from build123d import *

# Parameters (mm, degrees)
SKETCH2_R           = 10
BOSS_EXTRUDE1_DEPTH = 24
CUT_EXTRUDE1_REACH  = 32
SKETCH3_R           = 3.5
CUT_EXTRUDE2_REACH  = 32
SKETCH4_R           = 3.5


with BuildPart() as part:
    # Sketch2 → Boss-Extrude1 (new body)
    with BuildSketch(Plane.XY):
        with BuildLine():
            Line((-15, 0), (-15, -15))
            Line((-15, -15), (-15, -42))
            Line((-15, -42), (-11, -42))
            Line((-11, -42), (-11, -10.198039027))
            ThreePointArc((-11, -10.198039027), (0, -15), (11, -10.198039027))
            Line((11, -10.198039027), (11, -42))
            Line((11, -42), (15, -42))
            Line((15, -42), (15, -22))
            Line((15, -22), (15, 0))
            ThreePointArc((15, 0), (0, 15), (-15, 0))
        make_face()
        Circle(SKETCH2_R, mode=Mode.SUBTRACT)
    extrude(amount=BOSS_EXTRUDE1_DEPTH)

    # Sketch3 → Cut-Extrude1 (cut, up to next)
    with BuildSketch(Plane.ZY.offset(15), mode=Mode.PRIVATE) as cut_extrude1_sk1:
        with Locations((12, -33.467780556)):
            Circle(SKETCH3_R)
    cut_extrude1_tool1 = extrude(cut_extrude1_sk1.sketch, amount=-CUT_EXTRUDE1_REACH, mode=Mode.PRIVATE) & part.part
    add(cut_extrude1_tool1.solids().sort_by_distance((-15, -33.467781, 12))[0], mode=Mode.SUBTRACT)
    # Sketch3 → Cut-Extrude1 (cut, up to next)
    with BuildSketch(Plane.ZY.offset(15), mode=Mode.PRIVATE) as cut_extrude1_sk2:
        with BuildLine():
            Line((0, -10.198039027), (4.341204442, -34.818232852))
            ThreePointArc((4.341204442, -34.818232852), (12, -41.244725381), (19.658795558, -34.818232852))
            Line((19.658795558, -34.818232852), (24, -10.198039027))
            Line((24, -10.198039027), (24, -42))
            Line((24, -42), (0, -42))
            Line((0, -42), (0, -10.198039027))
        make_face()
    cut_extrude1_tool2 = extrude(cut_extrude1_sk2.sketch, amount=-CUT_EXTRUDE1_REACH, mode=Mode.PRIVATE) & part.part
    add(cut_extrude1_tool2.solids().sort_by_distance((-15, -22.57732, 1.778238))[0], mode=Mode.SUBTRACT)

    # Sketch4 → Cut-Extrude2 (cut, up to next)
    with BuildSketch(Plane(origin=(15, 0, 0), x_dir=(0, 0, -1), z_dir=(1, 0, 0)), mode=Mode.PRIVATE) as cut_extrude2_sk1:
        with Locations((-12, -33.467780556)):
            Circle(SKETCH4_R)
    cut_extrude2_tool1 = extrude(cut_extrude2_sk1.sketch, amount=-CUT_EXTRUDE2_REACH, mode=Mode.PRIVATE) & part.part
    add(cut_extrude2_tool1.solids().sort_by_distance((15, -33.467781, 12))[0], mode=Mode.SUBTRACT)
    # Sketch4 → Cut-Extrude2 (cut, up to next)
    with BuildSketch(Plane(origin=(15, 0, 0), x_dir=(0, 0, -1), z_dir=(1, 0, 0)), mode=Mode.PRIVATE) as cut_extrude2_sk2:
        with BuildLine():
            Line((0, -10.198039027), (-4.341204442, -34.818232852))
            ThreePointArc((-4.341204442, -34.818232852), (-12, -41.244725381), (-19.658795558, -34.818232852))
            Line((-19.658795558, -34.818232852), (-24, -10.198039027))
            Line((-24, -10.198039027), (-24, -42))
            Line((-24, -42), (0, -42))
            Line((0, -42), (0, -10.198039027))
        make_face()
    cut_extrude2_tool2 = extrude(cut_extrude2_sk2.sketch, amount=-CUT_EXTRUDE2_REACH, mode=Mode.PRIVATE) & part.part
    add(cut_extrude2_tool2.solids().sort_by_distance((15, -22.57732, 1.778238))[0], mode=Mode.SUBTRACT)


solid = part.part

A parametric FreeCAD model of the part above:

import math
import FreeCAD as App
import Part
import Sketcher

V = App.Vector
Q = App.Units.Quantity

doc = App.newDocument("Part")
body = doc.addObject("PartDesign::Body", "Body")

# Sketch on XY plane
sketch1 = body.newObject("Sketcher::SketchObject", "Sketch")
sketch1.AttachmentSupport = (doc.getObject("XY_Plane"), [""])
sketch1.MapMode = "FlatFace"
sketch1.addGeometry([
    Part.LineSegment(V(-15, 0, 0), V(-15, -42, 0)),  # 0
    Part.LineSegment(V(-15, -42, 0), V(-11, -42, 0)),  # 1
    Part.LineSegment(V(-11, -42, 0), V(-11, -10.2, 0)),  # 2
    Part.ArcOfCircle(Part.Circle(V(0, 0, 0), V(0, 0, 1), 15), math.radians(-137), math.radians(-43)),  # 3
    Part.LineSegment(V(11, -10.2, 0), V(11, -42, 0)),  # 4
    Part.LineSegment(V(11, -42, 0), V(15, -42, 0)),  # 5
    Part.LineSegment(V(15, -42, 0), V(15, 0, 0)),  # 6
    Part.ArcOfCircle(Part.Circle(V(0, 0, 0), V(0, 0, 1), 15), math.radians(0), math.radians(180)),  # 7
    Part.Circle(V(0, 0, 0), V(0, 0, 1), 10),  # 8
], False)
sketch1.addConstraint([
    Sketcher.Constraint("Coincident", 0, 2, 1, 1),
    Sketcher.Constraint("Coincident", 1, 2, 2, 1),
    Sketcher.Constraint("Coincident", 2, 2, 3, 1),
    Sketcher.Constraint("Coincident", 3, 2, 4, 1),
    Sketcher.Constraint("Coincident", 4, 2, 5, 1),
    Sketcher.Constraint("Coincident", 5, 2, 6, 1),
    Sketcher.Constraint("Tangent", 6, 2, 7, 1),
    Sketcher.Constraint("Tangent", 7, 2, 0, 1),
    Sketcher.Constraint("Vertical", 0),
    Sketcher.Constraint("Horizontal", 1),
    Sketcher.Constraint("Vertical", 2),
    Sketcher.Constraint("Vertical", 4),
    Sketcher.Constraint("Horizontal", 5),
    Sketcher.Constraint("Vertical", 6),
    Sketcher.Constraint("Coincident", 3, 3, -1, 1),
    Sketcher.Constraint("Coincident", 7, 3, -1, 1),
    Sketcher.Constraint("Coincident", 8, 3, -1, 1),
    Sketcher.Constraint("Equal", 3, 7),
    Sketcher.Constraint("Symmetric", 1, 2, 4, 2, -2),
    Sketcher.Constraint("Diameter", 8, Q("20 mm")),
    Sketcher.Constraint("Radius", 3, Q("15 mm")),
    Sketcher.Constraint("DistanceX", 1, 1, 1, 2, Q("4 mm")),
    Sketcher.Constraint("DistanceY", 0, 2, 0, 1, Q("42 mm")),
])
pad1 = body.newObject("PartDesign::Pad", "Pad")
pad1.Profile = sketch1
pad1.Length = 24

# Sketch on YZ plane
sketch2 = body.newObject("Sketcher::SketchObject", "Sketch001")
sketch2.AttachmentSupport = (doc.getObject("YZ_Plane"), [""])
sketch2.MapMode = "FlatFace"
sketch2.AttachmentOffset = App.Placement(V(0, 0, -15), App.Rotation())
sketch2.addGeometry(Part.Circle(V(-33.5, 12, 0), V(0, 0, 1), 3.5), False)
sketch2.addConstraint([
    Sketcher.Constraint("Diameter", 0, Q("7 mm")),
    Sketcher.Constraint("DistanceY", -1, 1, 0, 3, Q("12 mm")),
    Sketcher.Constraint("DistanceX", 0, 3, -1, 1, Q("33.467781 mm")),
])
pocket1 = body.newObject("PartDesign::Pocket", "Pocket")
pocket1.Profile = sketch2
pocket1.Type = "UpToFirst"
pocket1.Reversed = True

# Sketch on YZ plane
sketch3 = body.newObject("Sketcher::SketchObject", "Sketch002")
sketch3.AttachmentSupport = (doc.getObject("YZ_Plane"), [""])
sketch3.MapMode = "FlatFace"
sketch3.AttachmentOffset = App.Placement(V(0, 0, -15), App.Rotation())
sketch3.addGeometry([
    Part.LineSegment(V(-35, 4, 0), V(-10, 0, 0)),  # 0
    Part.LineSegment(V(-10, 0, 0), V(-42, 0, 0)),  # 1
    Part.LineSegment(V(-42, 0, 0), V(-42, 24, 0)),  # 2
    Part.LineSegment(V(-42, 24, 0), V(-10, 24, 0)),  # 3
    Part.LineSegment(V(-10, 24, 0), V(-35, 20, 0)),  # 4
    Part.ArcOfCircle(Part.Circle(V(-33, 12, 0), V(0, 0, 1), 8), math.radians(100), math.radians(260)),  # 5
], False)
sketch3.addConstraint([
    Sketcher.Constraint("Coincident", 0, 2, 1, 1),
    Sketcher.Constraint("Coincident", 1, 2, 2, 1),
    Sketcher.Constraint("Coincident", 2, 2, 3, 1),
    Sketcher.Constraint("Coincident", 3, 2, 4, 1),
    Sketcher.Constraint("Tangent", 4, 2, 5, 1),
    Sketcher.Constraint("Tangent", 5, 2, 0, 1),
    Sketcher.Constraint("Horizontal", 1),
    Sketcher.Constraint("Vertical", 2),
    Sketcher.Constraint("Horizontal", 3),
    Sketcher.Constraint("PointOnObject", 0, 2, -1),
    Sketcher.Constraint("Vertical", 0, 2, 3, 2),
    Sketcher.Constraint("Vertical", 4, 2, 5, 2),
    Sketcher.Constraint("DistanceY", 2, 1, 2, 2, Q("24 mm")),
    Sketcher.Constraint("Angle", 0, Q("-10 deg")),
    Sketcher.Constraint("Distance", 0, Q("25 mm")),
    Sketcher.Constraint("DistanceX", 1, 2, -1, 1, Q("42 mm")),
    Sketcher.Constraint("DistanceX", 1, 2, 1, 1, Q("31.801961 mm")),
])
pocket2 = body.newObject("PartDesign::Pocket", "Pocket001")
pocket2.Profile = sketch3
pocket2.Length = 4
pocket2.Reversed = True

# Sketch on YZ plane
sketch4 = body.newObject("Sketcher::SketchObject", "Sketch003")
sketch4.AttachmentSupport = (doc.getObject("YZ_Plane"), [""])
sketch4.MapMode = "FlatFace"
sketch4.AttachmentOffset = App.Placement(V(0, 0, 15), App.Rotation())
sketch4.addGeometry(Part.Circle(V(-33.5, 12, 0), V(0, 0, 1), 3.5), False)
sketch4.addConstraint([
    Sketcher.Constraint("Diameter", 0, Q("7 mm")),
    Sketcher.Constraint("DistanceY", -1, 1, 0, 3, Q("12 mm")),
    Sketcher.Constraint("DistanceX", 0, 3, -1, 1, Q("33.467781 mm")),
])
pocket3 = body.newObject("PartDesign::Pocket", "Pocket002")
pocket3.Profile = sketch4
pocket3.Type = "UpToFirst"

# Sketch on YZ plane
sketch5 = body.newObject("Sketcher::SketchObject", "Sketch004")
sketch5.AttachmentSupport = (doc.getObject("YZ_Plane"), [""])
sketch5.MapMode = "FlatFace"
sketch5.AttachmentOffset = App.Placement(V(0, 0, 15), App.Rotation())
sketch5.addGeometry([
    Part.LineSegment(V(-10, 0, 0), V(-35, 4, 0)),  # 0
    Part.ArcOfCircle(Part.Circle(V(-33, 12, 0), V(0, 0, 1), 8), math.radians(100), math.radians(260)),  # 1
    Part.LineSegment(V(-35, 20, 0), V(-10, 24, 0)),  # 2
    Part.LineSegment(V(-10, 24, 0), V(-42, 24, 0)),  # 3
    Part.LineSegment(V(-42, 24, 0), V(-42, 0, 0)),  # 4
    Part.LineSegment(V(-42, 0, 0), V(-10, 0, 0)),  # 5
], False)
sketch5.addConstraint([
    Sketcher.Constraint("Tangent", 0, 2, 1, 2),
    Sketcher.Constraint("Tangent", 1, 1, 2, 1),
    Sketcher.Constraint("Coincident", 2, 2, 3, 1),
    Sketcher.Constraint("Coincident", 3, 2, 4, 1),
    Sketcher.Constraint("Coincident", 4, 2, 5, 1),
    Sketcher.Constraint("Coincident", 5, 2, 0, 1),
    Sketcher.Constraint("Horizontal", 3),
    Sketcher.Constraint("Vertical", 4),
    Sketcher.Constraint("Horizontal", 5),
    Sketcher.Constraint("PointOnObject", 4, 2, -1),
    Sketcher.Constraint("Vertical", 0, 2, 1, 1),
    Sketcher.Constraint("Vertical", 2, 2, 5, 2),
    Sketcher.Constraint("DistanceY", 4, 2, 4, 1, Q("24 mm")),
    Sketcher.Constraint("Angle", 0, Q("170 deg")),
    Sketcher.Constraint("Distance", 0, Q("25 mm")),
    Sketcher.Constraint("DistanceX", 3, 2, -1, 1, Q("42 mm")),
    Sketcher.Constraint("DistanceX", 3, 2, 3, 1, Q("31.801961 mm")),
])
pocket4 = body.newObject("PartDesign::Pocket", "Pocket003")
pocket4.Profile = sketch5
pocket4.Length = 4

doc.recompute()
